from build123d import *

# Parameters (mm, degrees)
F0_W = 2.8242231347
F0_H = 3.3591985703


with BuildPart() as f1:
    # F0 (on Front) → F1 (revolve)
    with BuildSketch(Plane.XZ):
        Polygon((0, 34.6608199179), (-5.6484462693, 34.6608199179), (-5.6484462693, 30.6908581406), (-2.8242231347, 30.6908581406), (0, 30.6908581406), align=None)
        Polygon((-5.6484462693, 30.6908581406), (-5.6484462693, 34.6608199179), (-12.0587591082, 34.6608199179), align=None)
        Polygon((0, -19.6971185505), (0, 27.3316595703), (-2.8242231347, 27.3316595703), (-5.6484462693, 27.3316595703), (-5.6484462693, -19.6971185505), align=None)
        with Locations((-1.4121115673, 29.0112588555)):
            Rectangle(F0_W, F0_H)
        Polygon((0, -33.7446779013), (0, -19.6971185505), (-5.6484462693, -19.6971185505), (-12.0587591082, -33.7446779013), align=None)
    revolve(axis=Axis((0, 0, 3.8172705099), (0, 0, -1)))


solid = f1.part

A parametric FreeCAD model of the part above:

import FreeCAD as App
import Part
import Sketcher
from FreeCAD import Vector
Q = App.Units.Quantity


def add_polygon(sketch, points):
    """Adds a closed chain of lines whose ends are joined by coincident constraints."""
    first, n = sketch.GeometryCount, len(points)
    for a, b in zip(points, points[1:] + points[:1]):
        sketch.addGeometry(Part.LineSegment(App.Vector(*a, 0), App.Vector(*b, 0)), False)
    for i in range(n):
        sketch.addConstraint(Sketcher.Constraint("Coincident", first + i, 2, first + (i + 1) % n, 1))

doc = App.newDocument("Part")
body = doc.addObject("PartDesign::Body", "Body")

sketch1 = body.newObject("Sketcher::SketchObject", "Sketch")
sketch1.AttachmentSupport = (doc.getObject("XZ_Plane"), [""])
sketch1.MapMode = "FlatFace"
add_polygon(sketch1, [(0, 34.66082), (-12.058759, 34.66082), (-5.648446, 30.690858), (-2.824223, 30.690858), (-2.824223, 27.33166), (-5.648446, 27.33166), (-5.648446, -19.697119), (-12.058759, -33.744678), (0, -33.744678)])
sketch1.addConstraint([
    Sketcher.Constraint("Horizontal", 0),
    Sketcher.Constraint("Horizontal", 2),
    Sketcher.Constraint("Vertical", 3),
    Sketcher.Constraint("Horizontal", 4),
    Sketcher.Constraint("Vertical", 5),
    Sketcher.Constraint("Horizontal", 7),
    Sketcher.Constraint("Vertical", 8),
    Sketcher.Constraint("PointOnObject", 7, 2, -2),
    Sketcher.Constraint("Vertical", 1, 2, 4, 2),
    Sketcher.Constraint("Vertical", 0, 2, 6, 2),
    Sketcher.Constraint("DistanceY", 3, 2, 3, 1, Q("3.359199 mm")),
    Sketcher.Constraint("DistanceX", 0, 2, 0, 1, Q("12.058759 mm")),
    Sketcher.Constraint("DistanceY", 5, 2, 5, 1, Q("47.028778 mm")),
    Sketcher.Constraint("Distance", 6, Q("15.44105 mm")),
    Sketcher.Constraint("DistanceX", 2, 1, 2, 2, Q("2.824223 mm")),
    Sketcher.Constraint("DistanceY", 8, 1, 8, 2, Q("68.405498 mm")),
    Sketcher.Constraint("DistanceY", -1, 1, 0, 2, Q("34.66082 mm")),
    Sketcher.Constraint("DistanceY", -1, 1, 1, 2, Q("30.690858 mm")),
])
revolution = body.newObject("PartDesign::Revolution", "Revolution")
revolution.Profile = sketch1
revolution.ReferenceAxis = (sketch1, ["V_Axis"])
revolution.Angle = 360

doc.recompute()
